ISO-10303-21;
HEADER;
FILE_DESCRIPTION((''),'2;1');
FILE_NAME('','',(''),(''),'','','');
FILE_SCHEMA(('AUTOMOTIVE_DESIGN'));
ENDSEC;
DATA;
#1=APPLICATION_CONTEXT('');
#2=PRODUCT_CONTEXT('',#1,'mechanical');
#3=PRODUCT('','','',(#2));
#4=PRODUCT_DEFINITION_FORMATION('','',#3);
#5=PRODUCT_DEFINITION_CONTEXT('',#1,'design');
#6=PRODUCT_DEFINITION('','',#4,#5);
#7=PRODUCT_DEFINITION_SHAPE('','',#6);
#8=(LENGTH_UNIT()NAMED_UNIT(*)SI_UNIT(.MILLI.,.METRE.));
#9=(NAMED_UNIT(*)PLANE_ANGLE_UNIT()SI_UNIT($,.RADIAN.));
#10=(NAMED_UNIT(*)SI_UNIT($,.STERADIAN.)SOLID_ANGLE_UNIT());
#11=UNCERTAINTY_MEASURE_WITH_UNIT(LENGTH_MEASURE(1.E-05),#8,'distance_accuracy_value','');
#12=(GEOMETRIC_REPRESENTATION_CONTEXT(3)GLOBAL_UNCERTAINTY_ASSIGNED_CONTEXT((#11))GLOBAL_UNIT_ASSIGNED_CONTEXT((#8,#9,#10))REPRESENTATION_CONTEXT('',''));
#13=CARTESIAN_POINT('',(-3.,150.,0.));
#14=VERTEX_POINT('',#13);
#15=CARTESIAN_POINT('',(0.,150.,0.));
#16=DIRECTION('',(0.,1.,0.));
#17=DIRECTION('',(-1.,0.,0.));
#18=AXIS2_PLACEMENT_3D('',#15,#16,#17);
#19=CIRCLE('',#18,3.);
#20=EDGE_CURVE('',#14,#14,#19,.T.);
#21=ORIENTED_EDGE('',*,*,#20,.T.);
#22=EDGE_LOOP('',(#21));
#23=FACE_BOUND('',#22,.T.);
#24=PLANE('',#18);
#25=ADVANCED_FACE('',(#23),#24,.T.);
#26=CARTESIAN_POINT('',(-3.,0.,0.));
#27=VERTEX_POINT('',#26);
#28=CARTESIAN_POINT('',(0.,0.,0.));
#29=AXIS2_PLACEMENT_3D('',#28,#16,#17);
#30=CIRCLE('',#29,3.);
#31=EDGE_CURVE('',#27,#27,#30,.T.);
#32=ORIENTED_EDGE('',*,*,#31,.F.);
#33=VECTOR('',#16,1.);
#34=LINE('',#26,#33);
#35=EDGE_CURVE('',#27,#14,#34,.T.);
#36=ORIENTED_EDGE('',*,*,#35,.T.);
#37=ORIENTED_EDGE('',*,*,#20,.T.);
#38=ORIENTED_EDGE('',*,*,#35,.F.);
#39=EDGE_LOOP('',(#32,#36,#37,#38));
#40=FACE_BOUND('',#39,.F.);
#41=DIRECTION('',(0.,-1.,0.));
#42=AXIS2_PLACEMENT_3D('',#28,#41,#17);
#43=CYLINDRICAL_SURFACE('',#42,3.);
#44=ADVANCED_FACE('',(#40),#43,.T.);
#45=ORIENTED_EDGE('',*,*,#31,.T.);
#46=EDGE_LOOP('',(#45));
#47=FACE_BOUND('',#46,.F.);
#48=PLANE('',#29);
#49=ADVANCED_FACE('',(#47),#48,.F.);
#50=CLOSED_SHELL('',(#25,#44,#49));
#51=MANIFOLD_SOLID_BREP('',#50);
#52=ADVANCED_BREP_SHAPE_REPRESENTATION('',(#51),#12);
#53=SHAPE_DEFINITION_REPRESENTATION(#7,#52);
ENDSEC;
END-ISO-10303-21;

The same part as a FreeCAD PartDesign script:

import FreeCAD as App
import Part
import Sketcher
from FreeCAD import Vector

doc = App.newDocument("Part")
body = doc.addObject("PartDesign::Body", "Body")

# Sketch on XZ plane
sketch1 = body.newObject("Sketcher::SketchObject", "Sketch")
sketch1.AttachmentSupport = (doc.getObject("XZ_Plane"), [""])
sketch1.MapMode = "FlatFace"
sketch1.addGeometry(Part.Circle(Vector(0, 0, 0), Vector(0, 0, 1), 3), False)
sketch1.addConstraint([
    Sketcher.Constraint("Coincident", 0, 3, -1, 1),
    Sketcher.Constraint("Diameter", 0, 6.0),
])
pad1 = body.newObject("PartDesign::Pad", "Pad")
pad1.Profile = sketch1
pad1.Length = 150
pad1.Reversed = True

doc.recompute()
